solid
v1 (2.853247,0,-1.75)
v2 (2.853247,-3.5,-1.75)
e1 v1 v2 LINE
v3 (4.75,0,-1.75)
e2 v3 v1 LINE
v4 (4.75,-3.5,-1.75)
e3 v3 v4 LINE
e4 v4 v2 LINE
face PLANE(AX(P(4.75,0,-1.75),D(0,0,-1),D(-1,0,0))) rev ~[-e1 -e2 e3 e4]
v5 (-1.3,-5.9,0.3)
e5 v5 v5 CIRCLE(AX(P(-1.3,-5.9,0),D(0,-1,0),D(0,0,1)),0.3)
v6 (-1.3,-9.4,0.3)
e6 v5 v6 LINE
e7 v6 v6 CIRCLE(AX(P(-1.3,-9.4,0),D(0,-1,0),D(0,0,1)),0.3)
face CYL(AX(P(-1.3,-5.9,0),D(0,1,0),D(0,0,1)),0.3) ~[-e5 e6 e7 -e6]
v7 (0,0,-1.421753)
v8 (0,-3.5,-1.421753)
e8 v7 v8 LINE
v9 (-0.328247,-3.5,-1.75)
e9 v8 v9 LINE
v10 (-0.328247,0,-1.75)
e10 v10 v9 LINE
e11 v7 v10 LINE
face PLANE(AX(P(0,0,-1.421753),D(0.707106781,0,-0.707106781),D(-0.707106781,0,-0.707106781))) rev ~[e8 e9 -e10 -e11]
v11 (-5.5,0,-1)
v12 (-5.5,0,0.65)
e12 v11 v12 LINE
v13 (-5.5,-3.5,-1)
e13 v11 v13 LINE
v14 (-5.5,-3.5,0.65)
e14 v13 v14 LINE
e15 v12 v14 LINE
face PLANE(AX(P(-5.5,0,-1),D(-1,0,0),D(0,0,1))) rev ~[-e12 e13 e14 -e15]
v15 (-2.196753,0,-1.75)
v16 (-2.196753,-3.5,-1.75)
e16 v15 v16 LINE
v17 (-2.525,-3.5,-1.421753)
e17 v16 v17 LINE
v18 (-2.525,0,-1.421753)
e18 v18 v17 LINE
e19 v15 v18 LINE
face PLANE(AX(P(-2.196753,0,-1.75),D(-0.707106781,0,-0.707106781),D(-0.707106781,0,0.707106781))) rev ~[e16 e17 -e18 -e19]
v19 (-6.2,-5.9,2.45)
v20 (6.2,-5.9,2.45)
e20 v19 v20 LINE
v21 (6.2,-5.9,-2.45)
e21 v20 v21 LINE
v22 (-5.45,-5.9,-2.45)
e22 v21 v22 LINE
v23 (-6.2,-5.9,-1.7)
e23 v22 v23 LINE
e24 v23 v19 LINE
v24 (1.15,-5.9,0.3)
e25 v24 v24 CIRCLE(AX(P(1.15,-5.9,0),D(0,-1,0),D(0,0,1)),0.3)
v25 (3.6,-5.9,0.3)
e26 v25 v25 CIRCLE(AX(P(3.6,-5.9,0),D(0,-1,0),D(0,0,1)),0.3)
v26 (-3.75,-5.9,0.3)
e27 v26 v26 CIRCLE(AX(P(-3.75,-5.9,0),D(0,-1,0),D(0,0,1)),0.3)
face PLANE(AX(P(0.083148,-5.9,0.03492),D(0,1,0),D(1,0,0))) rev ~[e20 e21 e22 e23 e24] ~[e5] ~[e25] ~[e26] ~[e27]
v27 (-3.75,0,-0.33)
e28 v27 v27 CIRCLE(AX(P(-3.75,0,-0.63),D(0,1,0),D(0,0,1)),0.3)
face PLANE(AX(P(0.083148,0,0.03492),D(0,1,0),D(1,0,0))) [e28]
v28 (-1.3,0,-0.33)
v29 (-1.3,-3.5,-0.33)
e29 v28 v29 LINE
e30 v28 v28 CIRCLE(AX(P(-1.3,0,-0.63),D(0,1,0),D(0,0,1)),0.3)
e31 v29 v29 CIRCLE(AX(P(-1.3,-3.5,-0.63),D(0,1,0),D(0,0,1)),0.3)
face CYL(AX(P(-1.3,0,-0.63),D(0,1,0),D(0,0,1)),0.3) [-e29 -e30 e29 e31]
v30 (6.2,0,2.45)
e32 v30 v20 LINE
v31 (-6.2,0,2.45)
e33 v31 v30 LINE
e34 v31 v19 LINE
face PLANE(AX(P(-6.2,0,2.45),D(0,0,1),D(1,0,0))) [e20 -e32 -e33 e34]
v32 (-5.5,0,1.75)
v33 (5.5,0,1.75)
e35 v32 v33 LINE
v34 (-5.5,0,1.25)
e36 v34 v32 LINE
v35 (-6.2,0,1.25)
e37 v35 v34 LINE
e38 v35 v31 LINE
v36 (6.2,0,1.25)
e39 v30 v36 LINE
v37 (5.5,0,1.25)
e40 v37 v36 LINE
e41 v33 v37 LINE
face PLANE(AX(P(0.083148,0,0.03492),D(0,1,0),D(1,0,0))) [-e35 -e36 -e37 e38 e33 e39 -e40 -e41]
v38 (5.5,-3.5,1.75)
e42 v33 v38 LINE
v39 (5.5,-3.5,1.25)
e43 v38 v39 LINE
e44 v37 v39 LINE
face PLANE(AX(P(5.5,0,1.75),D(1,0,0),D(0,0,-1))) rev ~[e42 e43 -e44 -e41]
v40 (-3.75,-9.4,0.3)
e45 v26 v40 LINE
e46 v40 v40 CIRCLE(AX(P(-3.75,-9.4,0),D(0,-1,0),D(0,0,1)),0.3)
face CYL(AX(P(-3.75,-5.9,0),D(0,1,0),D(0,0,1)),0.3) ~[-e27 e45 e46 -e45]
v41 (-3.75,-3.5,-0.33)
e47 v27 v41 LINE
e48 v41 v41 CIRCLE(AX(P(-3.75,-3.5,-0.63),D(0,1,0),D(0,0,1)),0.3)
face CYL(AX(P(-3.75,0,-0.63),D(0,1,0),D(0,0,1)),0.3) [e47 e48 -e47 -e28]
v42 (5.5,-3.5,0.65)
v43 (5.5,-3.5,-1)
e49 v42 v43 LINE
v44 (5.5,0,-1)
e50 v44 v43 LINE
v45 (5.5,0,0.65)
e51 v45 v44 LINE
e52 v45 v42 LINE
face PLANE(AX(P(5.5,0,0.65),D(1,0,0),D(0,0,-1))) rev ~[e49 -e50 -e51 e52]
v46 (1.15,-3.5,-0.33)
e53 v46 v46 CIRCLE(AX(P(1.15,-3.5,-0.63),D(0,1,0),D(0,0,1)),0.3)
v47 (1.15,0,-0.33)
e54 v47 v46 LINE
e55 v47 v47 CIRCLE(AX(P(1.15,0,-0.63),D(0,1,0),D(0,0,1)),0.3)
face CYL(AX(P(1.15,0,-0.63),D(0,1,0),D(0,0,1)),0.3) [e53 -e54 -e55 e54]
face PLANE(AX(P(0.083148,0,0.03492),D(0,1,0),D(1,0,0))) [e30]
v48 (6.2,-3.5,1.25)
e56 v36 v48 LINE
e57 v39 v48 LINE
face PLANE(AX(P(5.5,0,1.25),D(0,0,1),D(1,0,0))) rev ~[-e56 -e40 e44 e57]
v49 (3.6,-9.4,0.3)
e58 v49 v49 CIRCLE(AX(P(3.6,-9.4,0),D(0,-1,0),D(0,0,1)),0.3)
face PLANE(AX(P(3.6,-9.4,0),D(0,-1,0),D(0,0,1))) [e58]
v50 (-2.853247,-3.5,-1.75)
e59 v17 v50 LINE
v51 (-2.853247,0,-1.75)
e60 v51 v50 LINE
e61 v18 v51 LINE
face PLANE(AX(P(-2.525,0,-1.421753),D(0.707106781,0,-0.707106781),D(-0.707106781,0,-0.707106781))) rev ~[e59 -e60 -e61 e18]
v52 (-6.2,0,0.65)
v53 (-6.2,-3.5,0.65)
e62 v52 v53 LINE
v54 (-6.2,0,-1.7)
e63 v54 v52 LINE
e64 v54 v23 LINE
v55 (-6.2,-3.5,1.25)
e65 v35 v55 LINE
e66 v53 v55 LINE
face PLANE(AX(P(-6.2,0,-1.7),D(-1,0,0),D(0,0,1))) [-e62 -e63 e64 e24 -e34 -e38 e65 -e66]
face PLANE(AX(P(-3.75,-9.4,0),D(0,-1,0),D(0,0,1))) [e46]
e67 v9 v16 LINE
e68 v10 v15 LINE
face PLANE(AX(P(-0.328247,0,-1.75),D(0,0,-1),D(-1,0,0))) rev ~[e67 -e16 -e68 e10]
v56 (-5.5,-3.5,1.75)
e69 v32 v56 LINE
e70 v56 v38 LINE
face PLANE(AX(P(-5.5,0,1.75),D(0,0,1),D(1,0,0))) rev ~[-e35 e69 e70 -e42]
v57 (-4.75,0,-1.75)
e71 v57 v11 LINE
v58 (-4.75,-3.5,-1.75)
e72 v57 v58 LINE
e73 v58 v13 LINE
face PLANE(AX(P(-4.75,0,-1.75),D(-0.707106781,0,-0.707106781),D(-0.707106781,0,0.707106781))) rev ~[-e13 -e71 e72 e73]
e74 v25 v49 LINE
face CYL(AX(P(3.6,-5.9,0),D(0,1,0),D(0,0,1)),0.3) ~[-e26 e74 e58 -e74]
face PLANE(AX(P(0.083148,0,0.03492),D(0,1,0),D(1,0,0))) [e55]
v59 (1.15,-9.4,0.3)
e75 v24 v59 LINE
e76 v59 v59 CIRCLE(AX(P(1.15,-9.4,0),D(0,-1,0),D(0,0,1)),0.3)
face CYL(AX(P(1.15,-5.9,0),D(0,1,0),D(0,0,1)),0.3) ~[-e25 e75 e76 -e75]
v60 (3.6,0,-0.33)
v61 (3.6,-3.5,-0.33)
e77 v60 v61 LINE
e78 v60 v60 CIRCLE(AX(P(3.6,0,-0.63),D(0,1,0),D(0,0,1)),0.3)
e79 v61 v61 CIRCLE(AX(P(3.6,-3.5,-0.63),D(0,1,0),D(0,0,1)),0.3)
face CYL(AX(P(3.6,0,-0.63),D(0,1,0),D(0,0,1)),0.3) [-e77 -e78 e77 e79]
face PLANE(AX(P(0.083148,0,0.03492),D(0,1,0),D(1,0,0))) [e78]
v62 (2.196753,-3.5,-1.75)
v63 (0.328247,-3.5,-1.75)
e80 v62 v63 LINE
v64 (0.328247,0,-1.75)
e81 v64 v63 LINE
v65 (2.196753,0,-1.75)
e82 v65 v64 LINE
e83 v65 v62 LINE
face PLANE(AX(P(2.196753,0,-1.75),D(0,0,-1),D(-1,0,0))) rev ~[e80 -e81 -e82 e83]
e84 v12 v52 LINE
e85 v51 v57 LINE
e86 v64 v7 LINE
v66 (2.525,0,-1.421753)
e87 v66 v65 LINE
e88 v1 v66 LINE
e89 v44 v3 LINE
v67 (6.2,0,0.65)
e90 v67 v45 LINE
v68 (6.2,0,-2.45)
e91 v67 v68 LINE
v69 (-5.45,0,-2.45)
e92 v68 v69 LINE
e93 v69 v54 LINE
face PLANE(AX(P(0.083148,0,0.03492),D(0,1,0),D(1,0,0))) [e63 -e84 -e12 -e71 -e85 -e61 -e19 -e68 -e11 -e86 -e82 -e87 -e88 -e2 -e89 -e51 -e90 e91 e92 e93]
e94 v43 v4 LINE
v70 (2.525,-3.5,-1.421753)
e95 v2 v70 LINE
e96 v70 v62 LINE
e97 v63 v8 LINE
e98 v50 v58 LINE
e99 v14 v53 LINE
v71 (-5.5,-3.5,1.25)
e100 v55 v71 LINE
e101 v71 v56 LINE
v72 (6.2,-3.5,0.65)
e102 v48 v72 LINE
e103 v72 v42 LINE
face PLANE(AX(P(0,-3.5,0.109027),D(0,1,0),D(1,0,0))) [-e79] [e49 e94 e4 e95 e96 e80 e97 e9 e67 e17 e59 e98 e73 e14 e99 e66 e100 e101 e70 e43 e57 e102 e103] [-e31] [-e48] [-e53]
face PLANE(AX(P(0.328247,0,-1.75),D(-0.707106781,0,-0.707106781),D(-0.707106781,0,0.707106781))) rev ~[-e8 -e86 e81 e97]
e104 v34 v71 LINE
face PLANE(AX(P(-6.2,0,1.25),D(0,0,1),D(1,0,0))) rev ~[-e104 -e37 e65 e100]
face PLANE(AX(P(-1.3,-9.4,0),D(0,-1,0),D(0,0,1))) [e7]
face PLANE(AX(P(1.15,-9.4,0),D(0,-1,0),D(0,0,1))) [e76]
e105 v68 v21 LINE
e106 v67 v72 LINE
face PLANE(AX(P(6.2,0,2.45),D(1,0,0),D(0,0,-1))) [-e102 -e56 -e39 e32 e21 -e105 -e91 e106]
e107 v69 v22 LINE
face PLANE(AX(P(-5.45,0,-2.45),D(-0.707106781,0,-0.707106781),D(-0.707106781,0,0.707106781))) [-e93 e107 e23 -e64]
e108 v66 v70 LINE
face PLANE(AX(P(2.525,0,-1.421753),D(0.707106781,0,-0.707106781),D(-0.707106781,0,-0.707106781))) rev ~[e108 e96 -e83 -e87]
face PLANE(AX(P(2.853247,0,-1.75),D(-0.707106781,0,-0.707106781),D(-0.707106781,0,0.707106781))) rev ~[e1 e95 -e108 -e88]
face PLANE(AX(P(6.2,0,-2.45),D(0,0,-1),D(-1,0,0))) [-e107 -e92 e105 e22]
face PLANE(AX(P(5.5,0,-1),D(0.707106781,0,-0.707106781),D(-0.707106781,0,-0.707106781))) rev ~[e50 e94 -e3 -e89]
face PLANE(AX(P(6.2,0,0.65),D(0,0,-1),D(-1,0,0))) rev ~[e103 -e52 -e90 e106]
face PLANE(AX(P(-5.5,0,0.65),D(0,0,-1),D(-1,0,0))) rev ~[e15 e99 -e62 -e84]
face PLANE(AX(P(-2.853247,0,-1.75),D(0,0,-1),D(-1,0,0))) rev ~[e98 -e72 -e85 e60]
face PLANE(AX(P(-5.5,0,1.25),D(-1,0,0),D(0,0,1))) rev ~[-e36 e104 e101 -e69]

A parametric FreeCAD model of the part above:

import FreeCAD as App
import Part
import Sketcher

V = App.Vector
Q = App.Units.Quantity


def add_polygon(sketch, points):
    """Adds a closed chain of lines whose ends are joined by coincident constraints."""
    first, n = sketch.GeometryCount, len(points)
    for a, b in zip(points, points[1:] + points[:1]):
        sketch.addGeometry(Part.LineSegment(App.Vector(*a, 0), App.Vector(*b, 0)), False)
    for i in range(n):
        sketch.addConstraint(Sketcher.Constraint("Coincident", first + i, 2, first + (i + 1) % n, 1))

doc = App.newDocument("Part")
body = doc.addObject("PartDesign::Body", "Body")

# Sketch on XZ plane
sketch1 = doc.addObject("Sketcher::SketchObject", "Sketch")
body.addObject(sketch1)
sketch1.AttachmentSupport = (doc.XZ_Plane, [""])
sketch1.MapMode = "FlatFace"
add_polygon(sketch1, [(-5.45, -2.45), (-6.2, -1.7), (-6.2, 2.45), (6.2, 2.45), (6.2, -2.45)])  # lines 0-4
sketch1.addConstraint([
    Sketcher.Constraint("Vertical", 1),
    Sketcher.Constraint("Horizontal", 2),
    Sketcher.Constraint("Vertical", 3),
    Sketcher.Constraint("Horizontal", 4),
    Sketcher.Constraint("Symmetric", 1, 2, 3, 2, -1, 1),
    Sketcher.Constraint("Angle", 0, Q("135 deg")),
    Sketcher.Constraint("DistanceX", 2, 1, 2, 2, Q("12.4 mm")),
    Sketcher.Constraint("DistanceY", 3, 2, 3, 1, Q("4.9 mm")),
    Sketcher.Constraint("DistanceX", 4, 2, 4, 1, Q("11.65 mm")),
])
pad1 = doc.addObject("PartDesign::Pad", "Pad")
body.addObject(pad1)
pad1.Profile = sketch1
pad1.Length = 5.9

# Sketch on XZ plane
sketch2 = doc.addObject("Sketcher::SketchObject", "Sketch001")
body.addObject(sketch2)
sketch2.AttachmentSupport = (doc.XZ_Plane, [""])
sketch2.MapMode = "FlatFace"
sketch2.AttachmentOffset = App.Placement(V(0, 0, 5.9), App.Rotation())
sketch2.addGeometry([
    Part.Circle(V(-3.75, 0, 0), V(0, 0, 1), 0.3),
    Part.Circle(V(-1.3, 0, 0), V(0, 0, 1), 0.3),
    Part.Circle(V(1.15, 0, 0), V(0, 0, 1), 0.3),
    Part.Circle(V(3.6, 0, 0), V(0, 0, 1), 0.3),
], False)
sketch2.addConstraint([
    Sketcher.Constraint("Equal", 0, 1),
    Sketcher.Constraint("Equal", 1, 2),
    Sketcher.Constraint("Equal", 2, 3),
    Sketcher.Constraint("PointOnObject", 0, 3, -1),
    Sketcher.Constraint("PointOnObject", 1, 3, -1),
    Sketcher.Constraint("PointOnObject", 2, 3, -1),
    Sketcher.Constraint("PointOnObject", 3, 3, -1),
    Sketcher.Constraint("Diameter", 0, Q("0.6 mm")),
    Sketcher.Constraint("DistanceX", 1, 3, -1, 1, Q("1.3 mm")),
    Sketcher.Constraint("DistanceX", -1, 1, 3, 3, Q("3.6 mm")),
    Sketcher.Constraint("DistanceX", 0, 3, 2, 3, Q("4.9 mm")),
    Sketcher.Constraint("DistanceX", 0, 3, -1, 1, Q("3.75 mm")),
])
pad2 = doc.addObject("PartDesign::Pad", "Pad001")
body.addObject(pad2)
pad2.Profile = sketch2
pad2.Length = 3.5

# Sketch on XZ plane
sketch3 = doc.addObject("Sketcher::SketchObject", "Sketch002")
body.addObject(sketch3)
sketch3.AttachmentSupport = (doc.XZ_Plane, [""])
sketch3.MapMode = "FlatFace"
add_polygon(sketch3, [(-2.853247, -1.75), (-4.75, -1.75), (-5.5, -1), (-5.5, 0.65), (-6.2, 0.65), (-6.2, 1.25), (-5.5, 1.25), (-5.5, 1.75), (5.5, 1.75), (5.5, 1.25), (6.2, 1.25), (6.2, 0.65), (5.5, 0.65), (5.5, -1), (4.75, -1.75), (2.853247, -1.75), (2.525, -1.421753), (2.196753, -1.75), (0.328247, -1.75), (0, -1.421753), (-0.328247, -1.75), (-2.196753, -1.75), (-2.525, -1.421753)])  # lines 0-22
sketch3.addGeometry(Part.Circle(V(-3.75, -0.63, 0), V(0, 0, 1), 0.3), False)  # 23
sketch3.addGeometry(Part.Circle(V(-1.3, -0.63, 0), V(0, 0, 1), 0.3), False)  # 24
sketch3.addGeometry(Part.Circle(V(1.15, -0.63, 0), V(0, 0, 1), 0.3), False)  # 25
sketch3.addGeometry(Part.Circle(V(3.6, -0.63, 0), V(0, 0, 1), 0.3), False)  # 26
sketch3.addConstraint([
    Sketcher.Constraint("Horizontal", 0),
    Sketcher.Constraint("Vertical", 2),
    Sketcher.Constraint("Horizontal", 3),
    Sketcher.Constraint("Vertical", 4),
    Sketcher.Constraint("Horizontal", 5),
    Sketcher.Constraint("Vertical", 6),
    Sketcher.Constraint("Horizontal", 7),
    Sketcher.Constraint("Vertical", 8),
    Sketcher.Constraint("Horizontal", 9),
    Sketcher.Constraint("Vertical", 10),
    Sketcher.Constraint("Horizontal", 11),
    Sketcher.Constraint("Vertical", 12),
    Sketcher.Constraint("Horizontal", 14),
    Sketcher.Constraint("Horizontal", 17),
    Sketcher.Constraint("Horizontal", 20),
    Sketcher.Constraint("Equal", 23, 24),
    Sketcher.Constraint("Equal", 24, 25),
    Sketcher.Constraint("Equal", 25, 26),
    Sketcher.Constraint("Symmetric", 5, 2, 8, 2, -2),
    Sketcher.Constraint("Symmetric", 3, 2, 10, 2, -2),
    Sketcher.Constraint("Symmetric", 1, 2, 12, 2, -2),
    Sketcher.Constraint("Symmetric", 0, 2, 13, 2, -2),
    Sketcher.Constraint("Symmetric", 17, 2, 19, 2, -2),
    Sketcher.Constraint("Symmetric", 15, 2, 21, 2, -2),
    Sketcher.Constraint("PointOnObject", 18, 2, -2),
    Sketcher.Constraint("Perpendicular", 1, 13),
    Sketcher.Constraint("Perpendicular", 13, 15),
    Sketcher.Constraint("Perpendicular", 15, 16),
    Sketcher.Constraint("Perpendicular", 16, 18),
    Sketcher.Constraint("Perpendicular", 19, 21),
    Sketcher.Constraint("Perpendicular", 21, 22),
    Sketcher.Constraint("Horizontal", 23, 3, 24, 3),
    Sketcher.Constraint("Horizontal", 24, 3, 25, 3),
    Sketcher.Constraint("Horizontal", 25, 3, 26, 3),
    Sketcher.Constraint("Horizontal", 14, 2, 16, 2),
    Sketcher.Constraint("Horizontal", 15, 2, 18, 2),
    Sketcher.Constraint("Vertical", 2, 2, 5, 2),
    Sketcher.Constraint("Diameter", 23, Q("0.6 mm")),
    Sketcher.Constraint("DistanceX", 7, 1, 7, 2, Q("11 mm")),
    Sketcher.Constraint("DistanceX", 3, 2, 3, 1, Q("0.7 mm")),
    Sketcher.Constraint("DistanceY", 4, 1, 4, 2, Q("0.6 mm")),
    Sketcher.Constraint("DistanceY", 6, 1, 6, 2, Q("0.5 mm")),
    Sketcher.Constraint("DistanceY", 1, 2, -1, 1, Q("1 mm")),
    Sketcher.Constraint("DistanceX", 0, 2, 23, 3, Q("1 mm")),
    Sketcher.Constraint("DistanceY", 0, 2, 4, 2, Q("3 mm")),
    Sketcher.Constraint("DistanceY", 2, 1, 2, 2, Q("1.65 mm")),
    Sketcher.Constraint("DistanceX", 24, 3, -1, 1, Q("1.3 mm")),
    Sketcher.Constraint("DistanceX", -1, 1, 26, 3, Q("3.6 mm")),
    Sketcher.Constraint("DistanceX", 23, 3, 25, 3, Q("4.9 mm")),
    Sketcher.Constraint("DistanceY", 23, 3, -1, 1, Q("0.63 mm")),
    Sketcher.Constraint("DistanceX", -1, 1, 15, 2, Q("2.525 mm")),
    Sketcher.Constraint("DistanceX", 0, 2, 0, 1, Q("1.896753 mm")),
])
pocket1 = doc.addObject("PartDesign::Pocket", "Pocket")
body.addObject(pocket1)
pocket1.Profile = sketch3
pocket1.Length = 3.5
pocket1.Reversed = True

doc.recompute()
